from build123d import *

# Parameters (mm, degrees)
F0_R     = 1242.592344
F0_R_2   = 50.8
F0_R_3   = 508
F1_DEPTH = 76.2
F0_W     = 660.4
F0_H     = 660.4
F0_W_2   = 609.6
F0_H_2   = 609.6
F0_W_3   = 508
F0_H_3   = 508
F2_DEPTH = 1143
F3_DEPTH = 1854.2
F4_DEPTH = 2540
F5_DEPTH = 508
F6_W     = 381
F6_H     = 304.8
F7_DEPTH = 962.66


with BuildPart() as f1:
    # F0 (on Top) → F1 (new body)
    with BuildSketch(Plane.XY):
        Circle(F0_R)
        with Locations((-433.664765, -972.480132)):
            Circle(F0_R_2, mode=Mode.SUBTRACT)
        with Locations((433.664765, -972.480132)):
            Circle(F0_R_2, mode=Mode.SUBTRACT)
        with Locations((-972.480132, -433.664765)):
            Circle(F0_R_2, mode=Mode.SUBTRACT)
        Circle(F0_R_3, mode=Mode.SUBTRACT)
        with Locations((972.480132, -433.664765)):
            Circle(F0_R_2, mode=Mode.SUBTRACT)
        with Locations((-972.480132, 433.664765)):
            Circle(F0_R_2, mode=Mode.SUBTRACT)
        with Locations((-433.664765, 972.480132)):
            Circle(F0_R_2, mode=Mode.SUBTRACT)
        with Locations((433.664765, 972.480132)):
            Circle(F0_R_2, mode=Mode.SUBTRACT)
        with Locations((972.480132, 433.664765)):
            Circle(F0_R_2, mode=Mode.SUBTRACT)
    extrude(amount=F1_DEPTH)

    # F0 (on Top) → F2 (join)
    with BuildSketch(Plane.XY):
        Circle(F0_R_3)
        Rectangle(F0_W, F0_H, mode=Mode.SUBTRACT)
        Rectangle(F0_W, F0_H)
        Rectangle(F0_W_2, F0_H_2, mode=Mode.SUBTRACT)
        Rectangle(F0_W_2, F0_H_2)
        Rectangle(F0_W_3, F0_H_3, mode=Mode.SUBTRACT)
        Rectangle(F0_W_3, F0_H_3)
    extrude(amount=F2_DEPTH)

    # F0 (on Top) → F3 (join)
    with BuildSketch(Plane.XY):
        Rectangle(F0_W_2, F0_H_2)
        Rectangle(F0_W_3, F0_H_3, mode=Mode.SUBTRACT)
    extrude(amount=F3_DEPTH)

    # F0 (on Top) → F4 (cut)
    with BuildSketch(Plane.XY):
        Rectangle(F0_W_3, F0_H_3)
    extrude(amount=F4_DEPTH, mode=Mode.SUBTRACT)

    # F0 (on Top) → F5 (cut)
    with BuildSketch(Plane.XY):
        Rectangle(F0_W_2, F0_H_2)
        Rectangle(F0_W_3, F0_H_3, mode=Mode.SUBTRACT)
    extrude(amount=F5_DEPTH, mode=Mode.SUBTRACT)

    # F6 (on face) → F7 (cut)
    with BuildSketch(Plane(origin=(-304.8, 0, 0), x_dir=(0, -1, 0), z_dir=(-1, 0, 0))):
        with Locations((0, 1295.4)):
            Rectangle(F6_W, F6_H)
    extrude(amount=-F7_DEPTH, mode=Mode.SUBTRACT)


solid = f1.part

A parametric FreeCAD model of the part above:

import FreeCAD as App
import Part
import Sketcher
Q = App.Units.Quantity


def add_polygon(sketch, points):
    """Adds a closed chain of lines whose ends are joined by coincident constraints."""
    first, n = sketch.GeometryCount, len(points)
    for a, b in zip(points, points[1:] + points[:1]):
        sketch.addGeometry(Part.LineSegment(App.Vector(*a, 0), App.Vector(*b, 0)), False)
    for i in range(n):
        sketch.addConstraint(Sketcher.Constraint("Coincident", first + i, 2, first + (i + 1) % n, 1))

doc = App.newDocument("Part")
body = doc.addObject("PartDesign::Body", "Body")

# Sketch on XY plane
sketch1 = body.newObject("Sketcher::SketchObject", "Sketch")
sketch1.AttachmentSupport = (doc.getObject("XY_Plane"), [""])
sketch1.MapMode = "FlatFace"
sketch1.addGeometry(Part.Circle(App.Vector(0, 0, 0), App.Vector(0, 0, 1), 1243), False)
sketch1.addGeometry(Part.Circle(App.Vector(-434, -972, 0), App.Vector(0, 0, 1), 51), False)
sketch1.addGeometry(Part.Circle(App.Vector(-972, -434, 0), App.Vector(0, 0, 1), 51), False)
sketch1.addGeometry(Part.Circle(App.Vector(434, -972, 0), App.Vector(0, 0, 1), 51), False)
sketch1.addGeometry(Part.Circle(App.Vector(972, -434, 0), App.Vector(0, 0, 1), 51), False)
sketch1.addGeometry(Part.Circle(App.Vector(-972, 434, 0), App.Vector(0, 0, 1), 51), False)
sketch1.addGeometry(Part.Circle(App.Vector(-434, 972, 0), App.Vector(0, 0, 1), 51), False)
sketch1.addGeometry(Part.Circle(App.Vector(0, 0, 0), App.Vector(0, 0, 1), 508), False)
sketch1.addGeometry(Part.Circle(App.Vector(972, 434, 0), App.Vector(0, 0, 1), 51), False)
sketch1.addGeometry(Part.Circle(App.Vector(434, 972, 0), App.Vector(0, 0, 1), 51), False)
sketch1.addConstraint(Sketcher.Constraint("Coincident", 0, 3, -1, 1))
sketch1.addConstraint(Sketcher.Constraint("Coincident", 7, 3, -1, 1))
sketch1.addConstraint(Sketcher.Constraint("Equal", 1, 2))
sketch1.addConstraint(Sketcher.Constraint("Equal", 2, 3))
sketch1.addConstraint(Sketcher.Constraint("Equal", 3, 4))
sketch1.addConstraint(Sketcher.Constraint("Equal", 4, 5))
sketch1.addConstraint(Sketcher.Constraint("Equal", 5, 6))
sketch1.addConstraint(Sketcher.Constraint("Equal", 6, 8))
sketch1.addConstraint(Sketcher.Constraint("Equal", 8, 9))
sketch1.addConstraint(Sketcher.Constraint("Symmetric", 4, 3, 5, 3, -1, 1))
sketch1.addConstraint(Sketcher.Constraint("Symmetric", 3, 3, 6, 3, -1, 1))
sketch1.addConstraint(Sketcher.Constraint("Symmetric", 2, 3, 8, 3, -1, 1))
sketch1.addConstraint(Sketcher.Constraint("Symmetric", 1, 3, 9, 3, -1, 1))
sketch1.addConstraint(Sketcher.Constraint("Symmetric", 1, 3, 3, 3, -2))
sketch1.addConstraint(Sketcher.Constraint("Symmetric", 2, 3, 4, 3, -2))
sketch1.addConstraint(Sketcher.Constraint("Diameter", 1, Q("4 in")))
sketch1.addConstraint(Sketcher.Constraint("Diameter", 7, Q("40 in")))
sketch1.addConstraint(Sketcher.Constraint("Diameter", 0, Q("2485.184688 mm")))
sketch1.addConstraint(Sketcher.Constraint("DistanceY", 1, 3, -1, 1, Q("972.480132 mm")))
sketch1.addConstraint(Sketcher.Constraint("DistanceX", 2, 3, -1, 1, Q("972.480132 mm")))
sketch1.addConstraint(Sketcher.Constraint("DistanceX", 1, 3, 3, 3, Q("867.32953 mm")))
sketch1.addConstraint(Sketcher.Constraint("DistanceY", 2, 3, 5, 3, Q("867.32953 mm")))
pad1 = body.newObject("PartDesign::Pad", "Pad")
pad1.Profile = sketch1
pad1.Length = Q("3 in")

# Sketch on XY plane
sketch2 = body.newObject("Sketcher::SketchObject", "Sketch001")
sketch2.AttachmentSupport = (doc.getObject("XY_Plane"), [""])
sketch2.MapMode = "FlatFace"
sketch2.addGeometry(Part.Circle(App.Vector(0, 0, 0), App.Vector(0, 0, 1), 508), False)
sketch2.addConstraint(Sketcher.Constraint("Coincident", 0, 3, -1, 1))
sketch2.addConstraint(Sketcher.Constraint("Diameter", 0, Q("40 in")))
pad2 = body.newObject("PartDesign::Pad", "Pad001")
pad2.Profile = sketch2
pad2.Length = Q("45 in")

# Sketch on XY plane
sketch3 = body.newObject("Sketcher::SketchObject", "Sketch002")
sketch3.AttachmentSupport = (doc.getObject("XY_Plane"), [""])
sketch3.MapMode = "FlatFace"
add_polygon(sketch3, [(-305, 305), (-305, -305), (305, -305), (305, 305)])  # lines 0-3
add_polygon(sketch3, [(254, -254), (-254, -254), (-254, 254), (254, 254)])  # lines 4-7
sketch3.addConstraint(Sketcher.Constraint("Vertical", 0))
sketch3.addConstraint(Sketcher.Constraint("Horizontal", 1))
sketch3.addConstraint(Sketcher.Constraint("Vertical", 2))
sketch3.addConstraint(Sketcher.Constraint("Horizontal", 3))
sketch3.addConstraint(Sketcher.Constraint("Horizontal", 4))
sketch3.addConstraint(Sketcher.Constraint("Vertical", 5))
sketch3.addConstraint(Sketcher.Constraint("Horizontal", 6))
sketch3.addConstraint(Sketcher.Constraint("Vertical", 7))
sketch3.addConstraint(Sketcher.Constraint("Symmetric", 0, 2, 2, 2, -1, 1))
sketch3.addConstraint(Sketcher.Constraint("Symmetric", 4, 2, 6, 2, -1, 1))
sketch3.addConstraint(Sketcher.Constraint("Equal", 3, 0))
sketch3.addConstraint(Sketcher.Constraint("Equal", 6, 5))
sketch3.addConstraint(Sketcher.Constraint("DistanceX", 1, 1, 1, 2, Q("24 in")))
sketch3.addConstraint(Sketcher.Constraint("DistanceX", 4, 2, 4, 1, Q("20 in")))
pad3 = body.newObject("PartDesign::Pad", "Pad002")
pad3.Profile = sketch3
pad3.Length = Q("73 in")

# Sketch on XY plane
sketch4 = body.newObject("Sketcher::SketchObject", "Sketch003")
sketch4.AttachmentSupport = (doc.getObject("XY_Plane"), [""])
sketch4.MapMode = "FlatFace"
add_polygon(sketch4, [(-254, 254), (-254, -254), (254, -254), (254, 254)])  # lines 0-3
sketch4.addConstraint(Sketcher.Constraint("Vertical", 0))
sketch4.addConstraint(Sketcher.Constraint("Horizontal", 1))
sketch4.addConstraint(Sketcher.Constraint("Vertical", 2))
sketch4.addConstraint(Sketcher.Constraint("Horizontal", 3))
sketch4.addConstraint(Sketcher.Constraint("Symmetric", 0, 2, 2, 2, -1, 1))
sketch4.addConstraint(Sketcher.Constraint("Equal", 3, 0))
sketch4.addConstraint(Sketcher.Constraint("DistanceX", 1, 1, 1, 2, Q("20 in")))
pocket1 = body.newObject("PartDesign::Pocket", "Pocket")
pocket1.Profile = sketch4
pocket1.Length = Q("100 in")
pocket1.Reversed = True

# Sketch on XY plane
sketch5 = body.newObject("Sketcher::SketchObject", "Sketch004")
sketch5.AttachmentSupport = (doc.getObject("XY_Plane"), [""])
sketch5.MapMode = "FlatFace"
add_polygon(sketch5, [(-305, 305), (-305, -305), (305, -305), (305, 305)])  # lines 0-3
add_polygon(sketch5, [(254, -254), (-254, -254), (-254, 254), (254, 254)])  # lines 4-7
sketch5.addConstraint(Sketcher.Constraint("Vertical", 0))
sketch5.addConstraint(Sketcher.Constraint("Horizontal", 1))
sketch5.addConstraint(Sketcher.Constraint("Vertical", 2))
sketch5.addConstraint(Sketcher.Constraint("Horizontal", 3))
sketch5.addConstraint(Sketcher.Constraint("Horizontal", 4))
sketch5.addConstraint(Sketcher.Constraint("Vertical", 5))
sketch5.addConstraint(Sketcher.Constraint("Horizontal", 6))
sketch5.addConstraint(Sketcher.Constraint("Vertical", 7))
sketch5.addConstraint(Sketcher.Constraint("Symmetric", 0, 2, 2, 2, -1, 1))
sketch5.addConstraint(Sketcher.Constraint("Symmetric", 4, 2, 6, 2, -1, 1))
sketch5.addConstraint(Sketcher.Constraint("Equal", 3, 0))
sketch5.addConstraint(Sketcher.Constraint("Equal", 6, 5))
sketch5.addConstraint(Sketcher.Constraint("DistanceX", 1, 1, 1, 2, Q("24 in")))
sketch5.addConstraint(Sketcher.Constraint("DistanceX", 4, 2, 4, 1, Q("20 in")))
pocket2 = body.newObject("PartDesign::Pocket", "Pocket001")
pocket2.Profile = sketch5
pocket2.Length = Q("20 in")
pocket2.Reversed = True

# Sketch on YZ plane
sketch6 = body.newObject("Sketcher::SketchObject", "Sketch005")
sketch6.AttachmentSupport = (doc.getObject("YZ_Plane"), [""])
sketch6.MapMode = "FlatFace"
sketch6.AttachmentOffset = App.Placement(App.Vector(0, 0, -12 * 25.4), App.Rotation())
add_polygon(sketch6, [(190, 1448), (190, 1143), (-190, 1143), (-190, 1448)])  # lines 0-3
sketch6.addConstraint(Sketcher.Constraint("Vertical", 0))
sketch6.addConstraint(Sketcher.Constraint("Horizontal", 1))
sketch6.addConstraint(Sketcher.Constraint("Vertical", 2))
sketch6.addConstraint(Sketcher.Constraint("Horizontal", 3))
sketch6.addConstraint(Sketcher.Constraint("DistanceX", 1, 2, 1, 1, Q("15 in")))
sketch6.addConstraint(Sketcher.Constraint("DistanceY", 0, 2, 0, 1, Q("12 in")))
sketch6.addConstraint(Sketcher.Constraint("DistanceY", -1, 1, 0, 2, Q("45 in")))
sketch6.addConstraint(Sketcher.Constraint("DistanceX", -1, 1, 0, 2, Q("7.5 in")))
pocket3 = body.newObject("PartDesign::Pocket", "Pocket002")
pocket3.Profile = sketch6
pocket3.Length = Q("37.9 in")
pocket3.Reversed = True

doc.recompute()
